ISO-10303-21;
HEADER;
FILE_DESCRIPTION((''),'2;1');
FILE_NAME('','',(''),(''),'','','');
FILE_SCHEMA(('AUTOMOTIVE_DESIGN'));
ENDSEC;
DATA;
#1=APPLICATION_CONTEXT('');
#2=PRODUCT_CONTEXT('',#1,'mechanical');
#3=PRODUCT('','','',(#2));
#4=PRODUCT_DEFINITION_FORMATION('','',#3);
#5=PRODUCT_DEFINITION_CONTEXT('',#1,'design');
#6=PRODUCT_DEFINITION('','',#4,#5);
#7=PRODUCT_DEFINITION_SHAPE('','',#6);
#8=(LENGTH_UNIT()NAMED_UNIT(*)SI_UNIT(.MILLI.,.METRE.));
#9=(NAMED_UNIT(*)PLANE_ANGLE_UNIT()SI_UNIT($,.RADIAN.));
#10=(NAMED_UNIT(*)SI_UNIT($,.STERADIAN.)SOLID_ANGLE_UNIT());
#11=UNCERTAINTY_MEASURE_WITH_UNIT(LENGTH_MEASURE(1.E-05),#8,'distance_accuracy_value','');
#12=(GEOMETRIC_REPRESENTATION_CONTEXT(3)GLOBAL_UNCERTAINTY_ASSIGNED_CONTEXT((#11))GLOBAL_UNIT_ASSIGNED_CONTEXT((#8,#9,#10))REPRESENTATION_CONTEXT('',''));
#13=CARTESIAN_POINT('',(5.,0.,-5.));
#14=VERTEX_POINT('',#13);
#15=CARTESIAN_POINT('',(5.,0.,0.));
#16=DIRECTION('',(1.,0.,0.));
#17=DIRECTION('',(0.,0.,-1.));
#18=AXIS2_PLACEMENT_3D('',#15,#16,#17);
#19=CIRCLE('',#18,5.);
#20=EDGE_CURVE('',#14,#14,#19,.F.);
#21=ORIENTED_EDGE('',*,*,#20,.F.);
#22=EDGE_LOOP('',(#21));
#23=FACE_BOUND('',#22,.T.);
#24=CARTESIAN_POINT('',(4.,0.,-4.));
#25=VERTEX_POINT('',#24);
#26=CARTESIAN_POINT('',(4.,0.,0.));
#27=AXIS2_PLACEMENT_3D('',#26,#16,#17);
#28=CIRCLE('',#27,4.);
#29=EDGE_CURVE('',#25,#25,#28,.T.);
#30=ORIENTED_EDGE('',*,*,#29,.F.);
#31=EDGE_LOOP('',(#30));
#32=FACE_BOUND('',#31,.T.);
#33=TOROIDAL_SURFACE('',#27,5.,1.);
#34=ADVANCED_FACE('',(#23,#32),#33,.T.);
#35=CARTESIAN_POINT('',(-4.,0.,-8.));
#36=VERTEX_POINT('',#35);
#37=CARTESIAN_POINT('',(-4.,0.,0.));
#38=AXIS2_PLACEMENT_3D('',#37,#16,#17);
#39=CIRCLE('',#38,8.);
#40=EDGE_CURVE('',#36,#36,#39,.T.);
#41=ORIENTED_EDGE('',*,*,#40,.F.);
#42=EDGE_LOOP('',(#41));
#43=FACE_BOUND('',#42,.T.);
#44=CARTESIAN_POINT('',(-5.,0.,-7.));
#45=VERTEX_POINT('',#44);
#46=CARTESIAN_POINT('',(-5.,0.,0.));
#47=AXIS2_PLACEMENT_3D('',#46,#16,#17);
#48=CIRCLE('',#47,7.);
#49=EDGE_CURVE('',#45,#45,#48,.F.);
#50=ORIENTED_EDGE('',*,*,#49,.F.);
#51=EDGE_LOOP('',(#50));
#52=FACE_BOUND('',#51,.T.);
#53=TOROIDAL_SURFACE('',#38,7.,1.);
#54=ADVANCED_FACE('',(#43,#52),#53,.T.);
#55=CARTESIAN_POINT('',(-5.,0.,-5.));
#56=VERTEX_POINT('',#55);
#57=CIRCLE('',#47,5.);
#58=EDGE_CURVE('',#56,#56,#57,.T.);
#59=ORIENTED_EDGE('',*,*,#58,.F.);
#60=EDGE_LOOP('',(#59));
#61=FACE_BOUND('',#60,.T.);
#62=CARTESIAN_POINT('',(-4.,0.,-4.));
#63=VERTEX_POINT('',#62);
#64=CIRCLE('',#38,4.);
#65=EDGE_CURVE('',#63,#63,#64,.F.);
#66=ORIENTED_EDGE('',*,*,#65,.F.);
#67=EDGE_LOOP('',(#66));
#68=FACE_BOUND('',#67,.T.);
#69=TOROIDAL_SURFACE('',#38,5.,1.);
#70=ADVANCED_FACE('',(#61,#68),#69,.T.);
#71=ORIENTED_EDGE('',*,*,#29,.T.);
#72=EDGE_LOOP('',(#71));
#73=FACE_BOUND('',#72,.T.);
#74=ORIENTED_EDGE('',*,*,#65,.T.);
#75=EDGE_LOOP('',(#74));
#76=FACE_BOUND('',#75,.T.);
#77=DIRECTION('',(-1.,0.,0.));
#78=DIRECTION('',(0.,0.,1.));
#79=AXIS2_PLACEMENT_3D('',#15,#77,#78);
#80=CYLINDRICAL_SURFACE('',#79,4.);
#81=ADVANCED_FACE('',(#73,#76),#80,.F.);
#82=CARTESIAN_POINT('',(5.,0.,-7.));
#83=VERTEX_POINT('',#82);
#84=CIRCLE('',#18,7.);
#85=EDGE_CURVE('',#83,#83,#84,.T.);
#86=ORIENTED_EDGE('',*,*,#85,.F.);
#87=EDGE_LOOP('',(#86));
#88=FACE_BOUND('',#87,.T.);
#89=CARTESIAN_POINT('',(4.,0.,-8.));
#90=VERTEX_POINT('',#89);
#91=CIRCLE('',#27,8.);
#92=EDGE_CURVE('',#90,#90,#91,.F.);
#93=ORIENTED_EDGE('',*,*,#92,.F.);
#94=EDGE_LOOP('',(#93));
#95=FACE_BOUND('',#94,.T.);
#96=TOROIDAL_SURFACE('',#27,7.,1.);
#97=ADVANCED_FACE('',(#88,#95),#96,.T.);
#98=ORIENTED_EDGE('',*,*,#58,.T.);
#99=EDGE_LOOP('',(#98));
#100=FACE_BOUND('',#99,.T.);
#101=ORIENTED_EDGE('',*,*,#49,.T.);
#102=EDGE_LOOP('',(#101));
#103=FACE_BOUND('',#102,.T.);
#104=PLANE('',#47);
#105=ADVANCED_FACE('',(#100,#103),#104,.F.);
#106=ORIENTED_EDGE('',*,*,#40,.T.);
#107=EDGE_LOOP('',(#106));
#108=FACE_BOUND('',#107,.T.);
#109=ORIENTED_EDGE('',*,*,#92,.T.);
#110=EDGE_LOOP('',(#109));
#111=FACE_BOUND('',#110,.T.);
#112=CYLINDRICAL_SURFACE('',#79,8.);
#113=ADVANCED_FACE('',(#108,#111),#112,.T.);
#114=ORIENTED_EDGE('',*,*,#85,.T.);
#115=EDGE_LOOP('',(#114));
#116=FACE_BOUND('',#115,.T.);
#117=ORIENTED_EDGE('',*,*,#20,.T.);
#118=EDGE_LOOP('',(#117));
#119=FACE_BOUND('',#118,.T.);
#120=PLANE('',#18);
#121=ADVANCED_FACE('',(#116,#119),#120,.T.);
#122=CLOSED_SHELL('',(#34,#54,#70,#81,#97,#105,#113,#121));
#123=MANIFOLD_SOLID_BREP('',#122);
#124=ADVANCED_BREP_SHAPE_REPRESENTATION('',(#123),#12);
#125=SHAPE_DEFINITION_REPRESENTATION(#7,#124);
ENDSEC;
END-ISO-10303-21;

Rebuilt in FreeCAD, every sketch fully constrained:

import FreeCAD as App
import Part
import Sketcher

V = App.Vector
Q = App.Units.Quantity


def edges_at(feature, points):
    """Names of the edges that pass closest to the given points."""
    edges = feature.Shape.Edges
    near = lambda p: min(range(len(edges)), key=lambda i: edges[i].distToShape(Part.Vertex(*p))[0])
    return sorted({f"Edge{near(p) + 1}" for p in points})

doc = App.newDocument("Part")
params = doc.addObject("Spreadsheet::Sheet", "Params")
for row, (alias, value) in enumerate([
    ("sketch1_diameter", "16 mm"),
    ("sketch1_diameter2", "8 mm"),
    ("pad1_length", "10 mm"),
    ("fillet_radius", "1 mm"),
], start=1):
    params.set(f"A{row}", alias)
    params.set(f"B{row}", "=" + value)
    params.setAlias(f"B{row}", alias)

body = doc.addObject("PartDesign::Body", "Body")

# Sketch on YZ plane
sketch1 = body.newObject("Sketcher::SketchObject", "Sketch")
sketch1.AttachmentSupport = (doc.getObject("YZ_Plane"), [""])
sketch1.MapMode = "FlatFace"
sketch1.addGeometry([
    Part.Circle(V(0, 0, 0), V(0, 0, 1), 8),
    Part.Circle(V(0, 0, 0), V(0, 0, 1), 4),
], False)
sketch1.addConstraint([
    Sketcher.Constraint("Coincident", 0, 3, -1, 1),
    Sketcher.Constraint("Coincident", 1, 3, -1, 1),
    Sketcher.Constraint("Diameter", 0, Q("16 mm")),
    Sketcher.Constraint("Diameter", 1, Q("8 mm")),
])
sketch1.setExpression("Constraints[2]", "Params.sketch1_diameter")
sketch1.setExpression("Constraints[3]", "Params.sketch1_diameter2")
pad1 = body.newObject("PartDesign::Pad", "Pad")
pad1.Profile = sketch1
pad1.setExpression("Length", "Params.pad1_length")
pad1.Midplane = True
doc.recompute()

fillet = body.newObject("PartDesign::Fillet", "Fillet")
fillet.Base = (pad1, edges_at(pad1, [
    (-5, 0, 8),
    (5, 0, 8),
    (-5, 0, 4),
    (5, 0, 4),
]))
fillet.setExpression("Radius", "Params.fillet_radius")

doc.recompute()
